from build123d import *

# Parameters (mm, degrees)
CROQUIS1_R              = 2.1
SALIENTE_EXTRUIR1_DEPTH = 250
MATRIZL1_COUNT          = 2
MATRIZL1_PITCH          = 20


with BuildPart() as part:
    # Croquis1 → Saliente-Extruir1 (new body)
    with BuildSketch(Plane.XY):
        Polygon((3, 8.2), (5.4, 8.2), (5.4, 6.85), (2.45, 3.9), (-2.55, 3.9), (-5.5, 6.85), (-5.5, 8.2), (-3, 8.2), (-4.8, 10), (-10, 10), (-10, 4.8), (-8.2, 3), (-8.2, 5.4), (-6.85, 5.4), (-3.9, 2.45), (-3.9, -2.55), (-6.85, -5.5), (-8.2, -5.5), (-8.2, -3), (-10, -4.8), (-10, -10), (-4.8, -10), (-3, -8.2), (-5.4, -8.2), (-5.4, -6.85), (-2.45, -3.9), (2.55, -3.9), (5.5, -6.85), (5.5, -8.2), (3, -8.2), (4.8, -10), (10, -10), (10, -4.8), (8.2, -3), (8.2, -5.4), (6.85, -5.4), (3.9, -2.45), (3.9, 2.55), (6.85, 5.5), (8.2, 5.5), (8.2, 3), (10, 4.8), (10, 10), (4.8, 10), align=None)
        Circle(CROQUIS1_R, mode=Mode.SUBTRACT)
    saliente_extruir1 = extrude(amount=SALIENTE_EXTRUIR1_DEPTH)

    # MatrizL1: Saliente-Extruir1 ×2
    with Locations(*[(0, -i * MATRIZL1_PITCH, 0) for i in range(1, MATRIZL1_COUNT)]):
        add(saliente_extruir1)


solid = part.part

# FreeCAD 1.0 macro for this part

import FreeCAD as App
import Part
import Sketcher
Q = App.Units.Quantity

doc = App.newDocument("Part")
body = doc.addObject("PartDesign::Body", "Body")

sketch1 = body.newObject("Sketcher::SketchObject", "Sketch")
sketch1.AttachmentSupport = (doc.getObject("XY_Plane"), [""])
sketch1.MapMode = "FlatFace"
sketch1.addGeometry([
    Part.LineSegment(App.Vector(3, 8.2, 0), App.Vector(5.4, 8.2, 0)),
    Part.LineSegment(App.Vector(5.4, 8.2, 0), App.Vector(5.4, 6.8, 0)),
    Part.LineSegment(App.Vector(5.4, 6.8, 0), App.Vector(2.5, 3.9, 0)),
    Part.LineSegment(App.Vector(2.5, 3.9, 0), App.Vector(-2.5, 3.9, 0)),
    Part.LineSegment(App.Vector(-2.5, 3.9, 0), App.Vector(-5.5, 6.8, 0)),
    Part.LineSegment(App.Vector(-5.5, 6.8, 0), App.Vector(-5.5, 8.2, 0)),
    Part.LineSegment(App.Vector(-5.5, 8.2, 0), App.Vector(-3, 8.2, 0)),
    Part.LineSegment(App.Vector(-3, 8.2, 0), App.Vector(-4.8, 10, 0)),
    Part.LineSegment(App.Vector(-4.8, 10, 0), App.Vector(-10, 10, 0)),
    Part.LineSegment(App.Vector(-10, 10, 0), App.Vector(-10, 4.8, 0)),
    Part.LineSegment(App.Vector(-10, 4.8, 0), App.Vector(-8.2, 3, 0)),
    Part.LineSegment(App.Vector(-8.2, 3, 0), App.Vector(-8.2, 5.4, 0)),
    Part.LineSegment(App.Vector(-8.2, 5.4, 0), App.Vector(-6.8, 5.4, 0)),
    Part.LineSegment(App.Vector(-6.8, 5.4, 0), App.Vector(-3.9, 2.5, 0)),
    Part.LineSegment(App.Vector(-3.9, 2.5, 0), App.Vector(-3.9, -2.5, 0)),
    Part.LineSegment(App.Vector(-3.9, -2.5, 0), App.Vector(-6.8, -5.5, 0)),
    Part.LineSegment(App.Vector(-6.8, -5.5, 0), App.Vector(-8.2, -5.5, 0)),
    Part.LineSegment(App.Vector(-8.2, -5.5, 0), App.Vector(-8.2, -3, 0)),
    Part.LineSegment(App.Vector(-8.2, -3, 0), App.Vector(-10, -4.8, 0)),
    Part.LineSegment(App.Vector(-10, -4.8, 0), App.Vector(-10, -10, 0)),
    Part.LineSegment(App.Vector(-10, -10, 0), App.Vector(-4.8, -10, 0)),
    Part.LineSegment(App.Vector(-4.8, -10, 0), App.Vector(-3, -8.2, 0)),
    Part.LineSegment(App.Vector(-3, -8.2, 0), App.Vector(-5.4, -8.2, 0)),
    Part.LineSegment(App.Vector(-5.4, -8.2, 0), App.Vector(-5.4, -6.8, 0)),
    Part.LineSegment(App.Vector(-5.4, -6.8, 0), App.Vector(-2.5, -3.9, 0)),
    Part.LineSegment(App.Vector(-2.5, -3.9, 0), App.Vector(2.5, -3.9, 0)),
    Part.LineSegment(App.Vector(2.5, -3.9, 0), App.Vector(5.5, -6.8, 0)),
    Part.LineSegment(App.Vector(5.5, -6.8, 0), App.Vector(5.5, -8.2, 0)),
    Part.LineSegment(App.Vector(5.5, -8.2, 0), App.Vector(3, -8.2, 0)),
    Part.LineSegment(App.Vector(3, -8.2, 0), App.Vector(4.8, -10, 0)),
    Part.LineSegment(App.Vector(4.8, -10, 0), App.Vector(10, -10, 0)),
    Part.LineSegment(App.Vector(10, -10, 0), App.Vector(10, -4.8, 0)),
    Part.LineSegment(App.Vector(10, -4.8, 0), App.Vector(8.2, -3, 0)),
    Part.LineSegment(App.Vector(8.2, -3, 0), App.Vector(8.2, -5.4, 0)),
    Part.LineSegment(App.Vector(8.2, -5.4, 0), App.Vector(6.8, -5.4, 0)),
    Part.LineSegment(App.Vector(6.8, -5.4, 0), App.Vector(3.9, -2.5, 0)),
    Part.LineSegment(App.Vector(3.9, -2.5, 0), App.Vector(3.9, 2.5, 0)),
    Part.LineSegment(App.Vector(3.9, 2.5, 0), App.Vector(6.8, 5.5, 0)),
    Part.LineSegment(App.Vector(6.8, 5.5, 0), App.Vector(8.2, 5.5, 0)),
    Part.LineSegment(App.Vector(8.2, 5.5, 0), App.Vector(8.2, 3, 0)),
    Part.LineSegment(App.Vector(8.2, 3, 0), App.Vector(10, 4.8, 0)),
    Part.LineSegment(App.Vector(10, 4.8, 0), App.Vector(10, 10, 0)),
    Part.LineSegment(App.Vector(10, 10, 0), App.Vector(4.8, 10, 0)),
    Part.LineSegment(App.Vector(4.8, 10, 0), App.Vector(3, 8.2, 0)),
    Part.Circle(App.Vector(0, 0, 0), App.Vector(0, 0, 1), 2.1),
], False)
sketch1.addConstraint([
    Sketcher.Constraint("Coincident", 0, 2, 1, 1),
    Sketcher.Constraint("Coincident", 1, 2, 2, 1),
    Sketcher.Constraint("Coincident", 2, 2, 3, 1),
    Sketcher.Constraint("Coincident", 3, 2, 4, 1),
    Sketcher.Constraint("Coincident", 4, 2, 5, 1),
    Sketcher.Constraint("Coincident", 5, 2, 6, 1),
    Sketcher.Constraint("Coincident", 6, 2, 7, 1),
    Sketcher.Constraint("Coincident", 7, 2, 8, 1),
    Sketcher.Constraint("Coincident", 8, 2, 9, 1),
    Sketcher.Constraint("Coincident", 9, 2, 10, 1),
    Sketcher.Constraint("Coincident", 10, 2, 11, 1),
    Sketcher.Constraint("Coincident", 11, 2, 12, 1),
    Sketcher.Constraint("Coincident", 12, 2, 13, 1),
    Sketcher.Constraint("Coincident", 13, 2, 14, 1),
    Sketcher.Constraint("Coincident", 14, 2, 15, 1),
    Sketcher.Constraint("Coincident", 15, 2, 16, 1),
    Sketcher.Constraint("Coincident", 16, 2, 17, 1),
    Sketcher.Constraint("Coincident", 17, 2, 18, 1),
    Sketcher.Constraint("Coincident", 18, 2, 19, 1),
    Sketcher.Constraint("Coincident", 19, 2, 20, 1),
    Sketcher.Constraint("Coincident", 20, 2, 21, 1),
    Sketcher.Constraint("Coincident", 21, 2, 22, 1),
    Sketcher.Constraint("Coincident", 22, 2, 23, 1),
    Sketcher.Constraint("Coincident", 23, 2, 24, 1),
    Sketcher.Constraint("Coincident", 24, 2, 25, 1),
    Sketcher.Constraint("Coincident", 25, 2, 26, 1),
    Sketcher.Constraint("Coincident", 26, 2, 27, 1),
    Sketcher.Constraint("Coincident", 27, 2, 28, 1),
    Sketcher.Constraint("Coincident", 28, 2, 29, 1),
    Sketcher.Constraint("Coincident", 29, 2, 30, 1),
    Sketcher.Constraint("Coincident", 30, 2, 31, 1),
    Sketcher.Constraint("Coincident", 31, 2, 32, 1),
    Sketcher.Constraint("Coincident", 32, 2, 33, 1),
    Sketcher.Constraint("Coincident", 33, 2, 34, 1),
    Sketcher.Constraint("Coincident", 34, 2, 35, 1),
    Sketcher.Constraint("Coincident", 35, 2, 36, 1),
    Sketcher.Constraint("Coincident", 36, 2, 37, 1),
    Sketcher.Constraint("Coincident", 37, 2, 38, 1),
    Sketcher.Constraint("Coincident", 38, 2, 39, 1),
    Sketcher.Constraint("Coincident", 39, 2, 40, 1),
    Sketcher.Constraint("Coincident", 40, 2, 41, 1),
    Sketcher.Constraint("Coincident", 41, 2, 42, 1),
    Sketcher.Constraint("Coincident", 42, 2, 43, 1),
    Sketcher.Constraint("Coincident", 43, 2, 0, 1),
    Sketcher.Constraint("Horizontal", 0),
    Sketcher.Constraint("Vertical", 1),
    Sketcher.Constraint("Horizontal", 3),
    Sketcher.Constraint("Vertical", 5),
    Sketcher.Constraint("Horizontal", 6),
    Sketcher.Constraint("Horizontal", 8),
    Sketcher.Constraint("Vertical", 9),
    Sketcher.Constraint("Vertical", 11),
    Sketcher.Constraint("Horizontal", 12),
    Sketcher.Constraint("Vertical", 14),
    Sketcher.Constraint("Horizontal", 16),
    Sketcher.Constraint("Vertical", 17),
    Sketcher.Constraint("Vertical", 19),
    Sketcher.Constraint("Horizontal", 20),
    Sketcher.Constraint("Horizontal", 22),
    Sketcher.Constraint("Vertical", 23),
    Sketcher.Constraint("Horizontal", 25),
    Sketcher.Constraint("Vertical", 27),
    Sketcher.Constraint("Horizontal", 28),
    Sketcher.Constraint("Horizontal", 30),
    Sketcher.Constraint("Vertical", 31),
    Sketcher.Constraint("Vertical", 33),
    Sketcher.Constraint("Horizontal", 34),
    Sketcher.Constraint("Vertical", 36),
    Sketcher.Constraint("Horizontal", 38),
    Sketcher.Constraint("Vertical", 39),
    Sketcher.Constraint("Vertical", 41),
    Sketcher.Constraint("Horizontal", 42),
    Sketcher.Constraint("Coincident", 44, 3, -1, 1),
    Sketcher.Constraint("Symmetric", 0, 2, 22, 2, -1, 1),
    Sketcher.Constraint("Symmetric", 2, 2, 24, 2, -1, 1),
    Sketcher.Constraint("Symmetric", 4, 2, 26, 2, -1, 1),
    Sketcher.Constraint("Symmetric", 6, 2, 28, 2, -1, 1),
    Sketcher.Constraint("Symmetric", 7, 2, 29, 2, -1, 1),
    Sketcher.Constraint("Symmetric", 9, 2, 31, 2, -1, 1),
    Sketcher.Constraint("Symmetric", 10, 2, 32, 2, -1, 1),
    Sketcher.Constraint("Symmetric", 12, 2, 34, 2, -1, 1),
    Sketcher.Constraint("Symmetric", 13, 2, 35, 2, -1, 1),
    Sketcher.Constraint("Symmetric", 15, 2, 37, 2, -1, 1),
    Sketcher.Constraint("Symmetric", 17, 2, 39, 2, -1, 1),
    Sketcher.Constraint("Symmetric", 18, 2, 40, 2, -1, 1),
    Sketcher.Constraint("Symmetric", 20, 2, 42, 2, -1, 1),
    Sketcher.Constraint("Symmetric", 21, 2, 28, 2, -2),
    Sketcher.Constraint("Symmetric", 20, 2, 29, 2, -2),
    Sketcher.Constraint("Symmetric", 18, 2, 31, 2, -2),
    Sketcher.Constraint("Symmetric", 17, 2, 32, 2, -2),
    Sketcher.Constraint("Perpendicular", 2, 4),
    Sketcher.Constraint("Parallel", 4, 7),
    Sketcher.Constraint("Parallel", 7, 10),
    Sketcher.Constraint("Parallel", 10, 13),
    Sketcher.Constraint("Perpendicular", 13, 15),
    Sketcher.Constraint("Parallel", 15, 18),
    Sketcher.Constraint("Parallel", 21, 24),
    Sketcher.Constraint("Perpendicular", 24, 26),
    Sketcher.Constraint("Perpendicular", 35, 37),
    Sketcher.Constraint("Parallel", 40, 43),
    Sketcher.Constraint("Horizontal", 1, 2, 4, 2),
    Sketcher.Constraint("Vertical", 12, 2, 15, 2),
    Sketcher.Constraint("Equal", 38, 1),
    Sketcher.Constraint("Equal", 42, 9),
    Sketcher.Constraint("Equal", 22, 11),
    Sketcher.Constraint("Equal", 25, 14),
    Sketcher.Constraint("Equal", 28, 17),
    Sketcher.Constraint("Equal", 7, 10),
    Sketcher.Constraint("Equal", 4, 13),
    Sketcher.Constraint("Diameter", 44, Q("4.2 mm")),
    Sketcher.Constraint("DistanceX", 3, 2, 3, 1, Q("5 mm")),
    Sketcher.Constraint("DistanceX", 0, 1, 0, 2, Q("2.4 mm")),
    Sketcher.Constraint("DistanceX", 6, 1, 6, 2, Q("2.5 mm")),
    Sketcher.Constraint("DistanceX", 8, 2, 8, 1, Q("5.2 mm")),
    Sketcher.Constraint("DistanceX", 6, 2, -1, 1, Q("3 mm")),
    Sketcher.Constraint("DistanceY", -1, 1, 7, 2, Q("10 mm")),
    Sketcher.Constraint("DistanceX", 12, 1, 12, 2, Q("1.35 mm")),
])
pad1 = body.newObject("PartDesign::Pad", "Pad")
pad1.Profile = sketch1
pad1.Length = 250
doc.recompute()

linearpattern = body.newObject("PartDesign::LinearPattern", "LinearPattern")
linearpattern.Originals = [pad1]
linearpattern.Direction = (doc.getObject("Y_Axis"), [""])
linearpattern.Mode = "offset"
linearpattern.Offset = 20
linearpattern.Occurrences = 2
linearpattern.Reversed = True
body.Tip = linearpattern

doc.recompute()
